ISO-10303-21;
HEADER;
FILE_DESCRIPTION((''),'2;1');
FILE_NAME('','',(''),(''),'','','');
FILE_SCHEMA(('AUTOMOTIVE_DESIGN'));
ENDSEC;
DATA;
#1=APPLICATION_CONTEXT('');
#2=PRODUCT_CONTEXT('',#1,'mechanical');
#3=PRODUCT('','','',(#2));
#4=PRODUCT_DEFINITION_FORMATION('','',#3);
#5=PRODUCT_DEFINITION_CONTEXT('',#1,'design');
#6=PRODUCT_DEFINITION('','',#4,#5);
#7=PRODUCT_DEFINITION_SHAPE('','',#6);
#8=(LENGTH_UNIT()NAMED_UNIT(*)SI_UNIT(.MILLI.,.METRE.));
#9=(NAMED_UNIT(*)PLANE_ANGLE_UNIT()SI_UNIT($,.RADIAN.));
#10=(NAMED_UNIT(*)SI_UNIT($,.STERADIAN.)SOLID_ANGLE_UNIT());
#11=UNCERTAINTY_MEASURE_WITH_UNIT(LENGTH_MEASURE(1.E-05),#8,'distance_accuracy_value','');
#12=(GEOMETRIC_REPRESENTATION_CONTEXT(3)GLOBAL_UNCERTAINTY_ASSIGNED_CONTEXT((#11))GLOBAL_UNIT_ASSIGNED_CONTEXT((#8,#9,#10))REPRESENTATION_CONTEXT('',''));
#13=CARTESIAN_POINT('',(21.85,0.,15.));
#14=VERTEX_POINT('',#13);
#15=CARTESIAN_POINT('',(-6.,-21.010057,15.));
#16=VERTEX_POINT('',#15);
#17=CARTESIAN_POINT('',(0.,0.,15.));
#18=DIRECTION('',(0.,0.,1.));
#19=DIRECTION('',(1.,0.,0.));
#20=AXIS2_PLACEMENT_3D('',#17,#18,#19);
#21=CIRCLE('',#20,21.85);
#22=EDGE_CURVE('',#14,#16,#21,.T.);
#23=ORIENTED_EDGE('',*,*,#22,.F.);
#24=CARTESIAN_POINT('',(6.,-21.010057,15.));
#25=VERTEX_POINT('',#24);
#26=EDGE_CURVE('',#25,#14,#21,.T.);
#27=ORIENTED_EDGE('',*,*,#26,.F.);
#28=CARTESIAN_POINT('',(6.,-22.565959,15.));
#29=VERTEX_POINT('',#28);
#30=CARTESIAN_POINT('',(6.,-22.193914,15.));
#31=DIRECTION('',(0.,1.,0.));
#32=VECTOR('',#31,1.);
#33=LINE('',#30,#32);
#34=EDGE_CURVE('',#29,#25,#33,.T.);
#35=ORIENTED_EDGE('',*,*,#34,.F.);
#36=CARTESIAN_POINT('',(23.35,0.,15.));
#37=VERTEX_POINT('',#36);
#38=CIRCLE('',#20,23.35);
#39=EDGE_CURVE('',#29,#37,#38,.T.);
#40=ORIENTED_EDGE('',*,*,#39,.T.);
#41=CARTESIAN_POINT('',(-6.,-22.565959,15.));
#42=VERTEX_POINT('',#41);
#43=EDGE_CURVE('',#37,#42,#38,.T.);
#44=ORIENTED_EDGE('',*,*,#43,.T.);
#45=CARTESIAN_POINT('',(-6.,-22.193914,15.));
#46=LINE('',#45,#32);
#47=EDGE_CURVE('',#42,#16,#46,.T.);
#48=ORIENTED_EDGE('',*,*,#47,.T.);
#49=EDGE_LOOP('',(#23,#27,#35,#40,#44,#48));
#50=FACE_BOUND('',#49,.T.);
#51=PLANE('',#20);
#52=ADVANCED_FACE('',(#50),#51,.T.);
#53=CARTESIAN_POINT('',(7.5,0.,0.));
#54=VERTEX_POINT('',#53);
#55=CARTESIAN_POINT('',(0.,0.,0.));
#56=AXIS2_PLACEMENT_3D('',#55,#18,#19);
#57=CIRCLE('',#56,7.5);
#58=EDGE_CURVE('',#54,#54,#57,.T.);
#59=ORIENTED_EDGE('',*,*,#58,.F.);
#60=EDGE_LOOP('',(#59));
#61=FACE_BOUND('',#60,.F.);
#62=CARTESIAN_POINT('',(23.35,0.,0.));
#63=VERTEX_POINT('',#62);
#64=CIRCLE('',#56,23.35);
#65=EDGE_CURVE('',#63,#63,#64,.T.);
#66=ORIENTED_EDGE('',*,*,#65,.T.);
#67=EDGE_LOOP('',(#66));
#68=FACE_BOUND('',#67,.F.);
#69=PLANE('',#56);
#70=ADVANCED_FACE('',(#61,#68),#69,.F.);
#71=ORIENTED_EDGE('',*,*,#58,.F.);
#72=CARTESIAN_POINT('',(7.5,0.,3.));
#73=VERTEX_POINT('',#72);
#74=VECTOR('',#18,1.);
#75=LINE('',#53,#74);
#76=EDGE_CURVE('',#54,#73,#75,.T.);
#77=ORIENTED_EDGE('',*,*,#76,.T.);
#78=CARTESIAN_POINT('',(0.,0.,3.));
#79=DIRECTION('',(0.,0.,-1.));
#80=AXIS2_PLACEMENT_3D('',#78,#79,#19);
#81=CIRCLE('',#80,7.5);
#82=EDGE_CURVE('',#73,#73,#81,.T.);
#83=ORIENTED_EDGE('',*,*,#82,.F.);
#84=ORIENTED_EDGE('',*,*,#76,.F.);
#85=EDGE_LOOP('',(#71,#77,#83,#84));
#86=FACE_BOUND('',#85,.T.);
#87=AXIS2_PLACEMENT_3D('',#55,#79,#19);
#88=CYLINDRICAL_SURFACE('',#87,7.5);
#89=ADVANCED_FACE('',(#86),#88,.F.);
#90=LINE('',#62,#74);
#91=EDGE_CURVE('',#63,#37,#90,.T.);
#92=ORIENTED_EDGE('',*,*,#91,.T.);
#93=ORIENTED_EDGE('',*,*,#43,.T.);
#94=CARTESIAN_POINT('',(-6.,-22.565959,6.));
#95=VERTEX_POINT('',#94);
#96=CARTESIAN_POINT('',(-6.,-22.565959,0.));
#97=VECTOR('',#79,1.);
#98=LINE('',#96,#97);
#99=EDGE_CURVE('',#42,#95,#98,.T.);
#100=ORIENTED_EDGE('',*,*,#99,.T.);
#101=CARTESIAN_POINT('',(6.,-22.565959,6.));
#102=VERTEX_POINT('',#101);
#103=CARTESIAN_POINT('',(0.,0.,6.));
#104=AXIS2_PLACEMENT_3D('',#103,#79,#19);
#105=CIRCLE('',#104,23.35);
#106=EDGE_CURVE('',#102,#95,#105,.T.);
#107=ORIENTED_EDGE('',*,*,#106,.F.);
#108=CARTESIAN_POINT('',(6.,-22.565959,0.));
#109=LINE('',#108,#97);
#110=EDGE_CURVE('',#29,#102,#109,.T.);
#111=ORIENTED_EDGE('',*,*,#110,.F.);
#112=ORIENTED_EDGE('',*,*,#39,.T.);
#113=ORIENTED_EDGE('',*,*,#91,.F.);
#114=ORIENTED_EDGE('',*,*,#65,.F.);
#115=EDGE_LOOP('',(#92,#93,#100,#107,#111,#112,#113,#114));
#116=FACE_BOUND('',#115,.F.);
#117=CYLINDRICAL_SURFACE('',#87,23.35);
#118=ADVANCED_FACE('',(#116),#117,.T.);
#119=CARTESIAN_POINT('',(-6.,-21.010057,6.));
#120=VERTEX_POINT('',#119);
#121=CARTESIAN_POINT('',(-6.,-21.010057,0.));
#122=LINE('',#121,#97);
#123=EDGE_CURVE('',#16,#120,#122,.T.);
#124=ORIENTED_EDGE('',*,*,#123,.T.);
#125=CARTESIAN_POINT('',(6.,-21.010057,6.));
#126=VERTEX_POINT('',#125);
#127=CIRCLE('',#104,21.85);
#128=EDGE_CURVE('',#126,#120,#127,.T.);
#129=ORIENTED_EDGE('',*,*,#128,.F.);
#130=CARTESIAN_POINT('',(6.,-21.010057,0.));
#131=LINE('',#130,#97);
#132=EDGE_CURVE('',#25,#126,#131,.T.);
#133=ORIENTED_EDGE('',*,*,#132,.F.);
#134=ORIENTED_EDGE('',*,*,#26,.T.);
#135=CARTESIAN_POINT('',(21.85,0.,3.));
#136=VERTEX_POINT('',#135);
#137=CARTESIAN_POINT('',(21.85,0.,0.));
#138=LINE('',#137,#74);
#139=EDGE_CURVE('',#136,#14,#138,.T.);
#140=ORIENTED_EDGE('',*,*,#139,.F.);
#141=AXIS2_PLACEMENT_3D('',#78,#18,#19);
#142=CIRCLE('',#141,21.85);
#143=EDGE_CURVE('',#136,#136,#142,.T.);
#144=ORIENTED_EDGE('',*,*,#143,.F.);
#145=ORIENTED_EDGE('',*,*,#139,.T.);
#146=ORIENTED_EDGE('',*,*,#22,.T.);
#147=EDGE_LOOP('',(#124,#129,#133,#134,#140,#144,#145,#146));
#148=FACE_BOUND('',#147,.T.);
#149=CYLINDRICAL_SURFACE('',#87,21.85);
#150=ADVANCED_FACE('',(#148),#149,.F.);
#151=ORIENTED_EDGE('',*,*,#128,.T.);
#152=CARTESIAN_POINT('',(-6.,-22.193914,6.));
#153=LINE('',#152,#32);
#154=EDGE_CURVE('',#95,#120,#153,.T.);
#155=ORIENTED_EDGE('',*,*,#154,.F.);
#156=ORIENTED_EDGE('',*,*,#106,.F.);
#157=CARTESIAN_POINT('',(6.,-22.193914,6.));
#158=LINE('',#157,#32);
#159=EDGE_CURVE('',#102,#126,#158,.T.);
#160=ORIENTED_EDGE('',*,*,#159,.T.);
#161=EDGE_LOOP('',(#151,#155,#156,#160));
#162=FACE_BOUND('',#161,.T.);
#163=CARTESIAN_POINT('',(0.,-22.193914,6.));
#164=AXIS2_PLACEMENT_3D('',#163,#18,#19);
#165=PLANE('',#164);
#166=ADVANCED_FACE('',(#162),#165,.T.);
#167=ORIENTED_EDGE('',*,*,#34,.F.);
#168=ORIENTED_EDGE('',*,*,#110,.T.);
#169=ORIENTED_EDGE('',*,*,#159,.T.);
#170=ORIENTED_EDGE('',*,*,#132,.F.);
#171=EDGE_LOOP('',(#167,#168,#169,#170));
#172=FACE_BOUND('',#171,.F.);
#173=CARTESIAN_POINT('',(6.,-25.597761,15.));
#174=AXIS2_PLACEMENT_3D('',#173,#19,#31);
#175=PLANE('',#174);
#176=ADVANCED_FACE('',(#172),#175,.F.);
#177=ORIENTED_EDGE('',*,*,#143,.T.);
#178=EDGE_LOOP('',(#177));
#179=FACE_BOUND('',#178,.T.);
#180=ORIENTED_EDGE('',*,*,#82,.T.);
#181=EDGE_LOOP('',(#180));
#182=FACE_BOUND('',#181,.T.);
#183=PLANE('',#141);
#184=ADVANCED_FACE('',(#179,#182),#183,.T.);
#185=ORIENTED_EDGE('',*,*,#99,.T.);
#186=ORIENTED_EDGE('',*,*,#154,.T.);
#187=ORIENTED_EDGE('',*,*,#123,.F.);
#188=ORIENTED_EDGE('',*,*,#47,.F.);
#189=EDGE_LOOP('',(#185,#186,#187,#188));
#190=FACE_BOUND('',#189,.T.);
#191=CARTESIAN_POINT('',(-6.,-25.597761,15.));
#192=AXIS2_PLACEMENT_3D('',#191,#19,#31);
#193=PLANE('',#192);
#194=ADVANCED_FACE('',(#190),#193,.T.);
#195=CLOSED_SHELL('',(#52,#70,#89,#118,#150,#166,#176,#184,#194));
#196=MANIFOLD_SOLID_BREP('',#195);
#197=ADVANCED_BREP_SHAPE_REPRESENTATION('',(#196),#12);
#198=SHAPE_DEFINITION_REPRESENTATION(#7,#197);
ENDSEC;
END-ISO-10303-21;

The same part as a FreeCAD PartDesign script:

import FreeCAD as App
import Part
import Sketcher

V = App.Vector
Q = App.Units.Quantity


def add_polygon(sketch, points):
    """Adds a closed chain of lines whose ends are joined by coincident constraints."""
    first, n = sketch.GeometryCount, len(points)
    for a, b in zip(points, points[1:] + points[:1]):
        sketch.addGeometry(Part.LineSegment(App.Vector(*a, 0), App.Vector(*b, 0)), False)
    for i in range(n):
        sketch.addConstraint(Sketcher.Constraint("Coincident", first + i, 2, first + (i + 1) % n, 1))

doc = App.newDocument("Part")
body = doc.addObject("PartDesign::Body", "Body")

# Sketch on XY plane
sketch1 = doc.addObject("Sketcher::SketchObject", "Sketch")
body.addObject(sketch1)
sketch1.AttachmentSupport = (doc.XY_Plane, [""])
sketch1.MapMode = "FlatFace"
sketch1.addGeometry(Part.Circle(V(0, 0, 0), V(0, 0, 1), 23.35), False)
sketch1.addGeometry(Part.Circle(V(0, 0, 0), V(0, 0, 1), 21.85), False)
sketch1.addConstraint(Sketcher.Constraint("Coincident", 0, 3, -1, 1))
sketch1.addConstraint(Sketcher.Constraint("Coincident", 1, 3, -1, 1))
sketch1.addConstraint(Sketcher.Constraint("Diameter", 0, Q("46.7 mm")))
sketch1.addConstraint(Sketcher.Constraint("Diameter", 1, Q("43.7 mm")))
pad1 = doc.addObject("PartDesign::Pad", "Pad")
body.addObject(pad1)
pad1.Profile = sketch1
pad1.Length = 15

# Sketch on XY plane
sketch2 = doc.addObject("Sketcher::SketchObject", "Sketch001")
body.addObject(sketch2)
sketch2.AttachmentSupport = (doc.XY_Plane, [""])
sketch2.MapMode = "FlatFace"
sketch2.addGeometry(Part.Circle(V(0, 0, 0), V(0, 0, 1), 21.85), False)
sketch2.addConstraint(Sketcher.Constraint("Coincident", 0, 3, -1, 1))
sketch2.addConstraint(Sketcher.Constraint("Diameter", 0, Q("43.7 mm")))
pad2 = doc.addObject("PartDesign::Pad", "Pad001")
body.addObject(pad2)
pad2.Profile = sketch2
pad2.Length = 3

# Sketch on XY plane
sketch3 = doc.addObject("Sketcher::SketchObject", "Sketch002")
body.addObject(sketch3)
sketch3.AttachmentSupport = (doc.XY_Plane, [""])
sketch3.MapMode = "FlatFace"
sketch3.addGeometry(Part.Circle(V(0, 0, 0), V(0, 0, 1), 7.5), False)
sketch3.addConstraint(Sketcher.Constraint("Coincident", 0, 3, -1, 1))
sketch3.addConstraint(Sketcher.Constraint("Diameter", 0, Q("15 mm")))
pocket1 = doc.addObject("PartDesign::Pocket", "Pocket")
body.addObject(pocket1)
pocket1.Profile = sketch3
pocket1.Length = 25.4
pocket1.Reversed = True

# Sketch on XY plane
sketch4 = doc.addObject("Sketcher::SketchObject", "Sketch003")
body.addObject(sketch4)
sketch4.AttachmentSupport = (doc.XY_Plane, [""])
sketch4.MapMode = "FlatFace"
sketch4.AttachmentOffset = App.Placement(V(0, 0, 15), App.Rotation())
add_polygon(sketch4, [(-6, -18.790067), (-6, -25.597761), (6, -25.597761), (6, -18.790067)])  # lines 0-3
sketch4.addConstraint(Sketcher.Constraint("Vertical", 0))
sketch4.addConstraint(Sketcher.Constraint("Horizontal", 1))
sketch4.addConstraint(Sketcher.Constraint("Vertical", 2))
sketch4.addConstraint(Sketcher.Constraint("Horizontal", 3))
sketch4.addConstraint(Sketcher.Constraint("DistanceX", 1, 1, 1, 2, Q("12 mm")))
sketch4.addConstraint(Sketcher.Constraint("DistanceX", 0, 2, -1, 1, Q("6 mm")))
sketch4.addConstraint(Sketcher.Constraint("DistanceY", 0, 2, 0, 1, Q("6.807694 mm")))
sketch4.addConstraint(Sketcher.Constraint("DistanceY", 0, 2, -1, 1, Q("25.597761 mm")))
pocket2 = doc.addObject("PartDesign::Pocket", "Pocket001")
body.addObject(pocket2)
pocket2.Profile = sketch4
pocket2.Length = 9

doc.recompute()
